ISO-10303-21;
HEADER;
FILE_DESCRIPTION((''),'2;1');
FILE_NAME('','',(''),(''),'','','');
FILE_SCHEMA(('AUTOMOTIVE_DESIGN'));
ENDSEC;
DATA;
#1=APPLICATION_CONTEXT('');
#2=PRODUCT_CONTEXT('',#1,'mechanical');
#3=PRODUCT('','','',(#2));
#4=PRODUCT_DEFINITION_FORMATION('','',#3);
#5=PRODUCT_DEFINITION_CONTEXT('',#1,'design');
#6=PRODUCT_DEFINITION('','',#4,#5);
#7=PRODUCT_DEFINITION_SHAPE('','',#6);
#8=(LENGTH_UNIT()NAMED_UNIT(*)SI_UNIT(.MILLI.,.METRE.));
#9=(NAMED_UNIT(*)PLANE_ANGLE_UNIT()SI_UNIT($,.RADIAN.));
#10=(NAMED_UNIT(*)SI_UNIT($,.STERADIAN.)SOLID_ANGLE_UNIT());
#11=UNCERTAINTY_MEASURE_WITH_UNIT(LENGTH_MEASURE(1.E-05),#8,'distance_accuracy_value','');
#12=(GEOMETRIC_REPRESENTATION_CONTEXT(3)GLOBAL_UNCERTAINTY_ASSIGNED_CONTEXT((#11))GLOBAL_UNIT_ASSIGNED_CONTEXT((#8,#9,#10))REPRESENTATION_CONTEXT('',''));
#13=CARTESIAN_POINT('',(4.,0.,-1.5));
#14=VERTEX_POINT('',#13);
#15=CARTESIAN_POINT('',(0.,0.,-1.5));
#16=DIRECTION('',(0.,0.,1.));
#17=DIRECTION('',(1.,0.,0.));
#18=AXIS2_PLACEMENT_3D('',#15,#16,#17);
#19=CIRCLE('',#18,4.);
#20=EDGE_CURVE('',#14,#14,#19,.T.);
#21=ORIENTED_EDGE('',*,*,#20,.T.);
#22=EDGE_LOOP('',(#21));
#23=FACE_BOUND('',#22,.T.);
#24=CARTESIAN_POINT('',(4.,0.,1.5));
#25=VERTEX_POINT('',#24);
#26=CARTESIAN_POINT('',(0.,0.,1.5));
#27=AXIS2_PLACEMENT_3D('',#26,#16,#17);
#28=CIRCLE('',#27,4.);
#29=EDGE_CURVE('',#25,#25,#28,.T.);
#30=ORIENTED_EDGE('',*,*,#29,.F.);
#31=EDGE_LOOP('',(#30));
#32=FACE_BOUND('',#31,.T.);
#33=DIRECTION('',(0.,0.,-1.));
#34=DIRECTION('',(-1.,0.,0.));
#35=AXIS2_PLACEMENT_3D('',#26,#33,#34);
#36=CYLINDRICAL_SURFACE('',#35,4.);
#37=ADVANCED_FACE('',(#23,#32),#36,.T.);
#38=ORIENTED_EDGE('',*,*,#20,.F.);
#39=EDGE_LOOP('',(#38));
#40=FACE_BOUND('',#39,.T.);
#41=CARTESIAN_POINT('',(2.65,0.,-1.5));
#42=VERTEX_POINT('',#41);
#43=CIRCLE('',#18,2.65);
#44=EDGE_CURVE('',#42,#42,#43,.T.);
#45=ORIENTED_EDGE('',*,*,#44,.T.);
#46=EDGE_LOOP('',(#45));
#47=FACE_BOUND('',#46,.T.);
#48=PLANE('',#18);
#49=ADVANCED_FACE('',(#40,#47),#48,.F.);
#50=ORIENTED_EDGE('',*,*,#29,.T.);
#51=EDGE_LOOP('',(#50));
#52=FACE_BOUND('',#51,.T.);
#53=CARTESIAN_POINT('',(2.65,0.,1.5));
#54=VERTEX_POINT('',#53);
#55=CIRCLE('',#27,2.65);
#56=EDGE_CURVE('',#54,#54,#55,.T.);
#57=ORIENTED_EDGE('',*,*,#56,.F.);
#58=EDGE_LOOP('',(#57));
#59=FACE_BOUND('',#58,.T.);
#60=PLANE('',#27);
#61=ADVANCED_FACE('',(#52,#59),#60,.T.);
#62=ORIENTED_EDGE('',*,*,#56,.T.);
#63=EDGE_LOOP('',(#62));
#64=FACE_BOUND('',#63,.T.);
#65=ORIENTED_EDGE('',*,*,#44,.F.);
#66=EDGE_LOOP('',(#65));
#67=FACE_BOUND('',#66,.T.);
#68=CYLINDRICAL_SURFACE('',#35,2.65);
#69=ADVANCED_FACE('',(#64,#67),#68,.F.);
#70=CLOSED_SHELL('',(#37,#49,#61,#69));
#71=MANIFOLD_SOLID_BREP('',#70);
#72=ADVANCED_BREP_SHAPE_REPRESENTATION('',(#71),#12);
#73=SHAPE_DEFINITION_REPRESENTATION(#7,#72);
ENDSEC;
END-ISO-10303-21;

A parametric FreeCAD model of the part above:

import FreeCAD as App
import Part
import Sketcher

V = App.Vector
Q = App.Units.Quantity

doc = App.newDocument("Part")
body = doc.addObject("PartDesign::Body", "Body")

sketch1 = body.newObject("Sketcher::SketchObject", "Sketch")
sketch1.AttachmentSupport = (doc.getObject("XY_Plane"), [""])
sketch1.MapMode = "FlatFace"
sketch1.addGeometry([
    Part.Circle(V(0, 0, 0), V(0, 0, 1), 4),
    Part.Circle(V(0, 0, 0), V(0, 0, 1), 2.65),
], False)
sketch1.addConstraint([
    Sketcher.Constraint("Coincident", 0, 3, -1, 1),
    Sketcher.Constraint("Coincident", 1, 3, -1, 1),
    Sketcher.Constraint("Diameter", 0, Q("8 mm")),
    Sketcher.Constraint("Diameter", 1, Q("5.3 mm")),
])
pad1 = body.newObject("PartDesign::Pad", "Pad")
pad1.Profile = sketch1
pad1.Type = "TwoLengths"
pad1.Length = 1.5
pad1.Length2 = 1.5

doc.recompute()
